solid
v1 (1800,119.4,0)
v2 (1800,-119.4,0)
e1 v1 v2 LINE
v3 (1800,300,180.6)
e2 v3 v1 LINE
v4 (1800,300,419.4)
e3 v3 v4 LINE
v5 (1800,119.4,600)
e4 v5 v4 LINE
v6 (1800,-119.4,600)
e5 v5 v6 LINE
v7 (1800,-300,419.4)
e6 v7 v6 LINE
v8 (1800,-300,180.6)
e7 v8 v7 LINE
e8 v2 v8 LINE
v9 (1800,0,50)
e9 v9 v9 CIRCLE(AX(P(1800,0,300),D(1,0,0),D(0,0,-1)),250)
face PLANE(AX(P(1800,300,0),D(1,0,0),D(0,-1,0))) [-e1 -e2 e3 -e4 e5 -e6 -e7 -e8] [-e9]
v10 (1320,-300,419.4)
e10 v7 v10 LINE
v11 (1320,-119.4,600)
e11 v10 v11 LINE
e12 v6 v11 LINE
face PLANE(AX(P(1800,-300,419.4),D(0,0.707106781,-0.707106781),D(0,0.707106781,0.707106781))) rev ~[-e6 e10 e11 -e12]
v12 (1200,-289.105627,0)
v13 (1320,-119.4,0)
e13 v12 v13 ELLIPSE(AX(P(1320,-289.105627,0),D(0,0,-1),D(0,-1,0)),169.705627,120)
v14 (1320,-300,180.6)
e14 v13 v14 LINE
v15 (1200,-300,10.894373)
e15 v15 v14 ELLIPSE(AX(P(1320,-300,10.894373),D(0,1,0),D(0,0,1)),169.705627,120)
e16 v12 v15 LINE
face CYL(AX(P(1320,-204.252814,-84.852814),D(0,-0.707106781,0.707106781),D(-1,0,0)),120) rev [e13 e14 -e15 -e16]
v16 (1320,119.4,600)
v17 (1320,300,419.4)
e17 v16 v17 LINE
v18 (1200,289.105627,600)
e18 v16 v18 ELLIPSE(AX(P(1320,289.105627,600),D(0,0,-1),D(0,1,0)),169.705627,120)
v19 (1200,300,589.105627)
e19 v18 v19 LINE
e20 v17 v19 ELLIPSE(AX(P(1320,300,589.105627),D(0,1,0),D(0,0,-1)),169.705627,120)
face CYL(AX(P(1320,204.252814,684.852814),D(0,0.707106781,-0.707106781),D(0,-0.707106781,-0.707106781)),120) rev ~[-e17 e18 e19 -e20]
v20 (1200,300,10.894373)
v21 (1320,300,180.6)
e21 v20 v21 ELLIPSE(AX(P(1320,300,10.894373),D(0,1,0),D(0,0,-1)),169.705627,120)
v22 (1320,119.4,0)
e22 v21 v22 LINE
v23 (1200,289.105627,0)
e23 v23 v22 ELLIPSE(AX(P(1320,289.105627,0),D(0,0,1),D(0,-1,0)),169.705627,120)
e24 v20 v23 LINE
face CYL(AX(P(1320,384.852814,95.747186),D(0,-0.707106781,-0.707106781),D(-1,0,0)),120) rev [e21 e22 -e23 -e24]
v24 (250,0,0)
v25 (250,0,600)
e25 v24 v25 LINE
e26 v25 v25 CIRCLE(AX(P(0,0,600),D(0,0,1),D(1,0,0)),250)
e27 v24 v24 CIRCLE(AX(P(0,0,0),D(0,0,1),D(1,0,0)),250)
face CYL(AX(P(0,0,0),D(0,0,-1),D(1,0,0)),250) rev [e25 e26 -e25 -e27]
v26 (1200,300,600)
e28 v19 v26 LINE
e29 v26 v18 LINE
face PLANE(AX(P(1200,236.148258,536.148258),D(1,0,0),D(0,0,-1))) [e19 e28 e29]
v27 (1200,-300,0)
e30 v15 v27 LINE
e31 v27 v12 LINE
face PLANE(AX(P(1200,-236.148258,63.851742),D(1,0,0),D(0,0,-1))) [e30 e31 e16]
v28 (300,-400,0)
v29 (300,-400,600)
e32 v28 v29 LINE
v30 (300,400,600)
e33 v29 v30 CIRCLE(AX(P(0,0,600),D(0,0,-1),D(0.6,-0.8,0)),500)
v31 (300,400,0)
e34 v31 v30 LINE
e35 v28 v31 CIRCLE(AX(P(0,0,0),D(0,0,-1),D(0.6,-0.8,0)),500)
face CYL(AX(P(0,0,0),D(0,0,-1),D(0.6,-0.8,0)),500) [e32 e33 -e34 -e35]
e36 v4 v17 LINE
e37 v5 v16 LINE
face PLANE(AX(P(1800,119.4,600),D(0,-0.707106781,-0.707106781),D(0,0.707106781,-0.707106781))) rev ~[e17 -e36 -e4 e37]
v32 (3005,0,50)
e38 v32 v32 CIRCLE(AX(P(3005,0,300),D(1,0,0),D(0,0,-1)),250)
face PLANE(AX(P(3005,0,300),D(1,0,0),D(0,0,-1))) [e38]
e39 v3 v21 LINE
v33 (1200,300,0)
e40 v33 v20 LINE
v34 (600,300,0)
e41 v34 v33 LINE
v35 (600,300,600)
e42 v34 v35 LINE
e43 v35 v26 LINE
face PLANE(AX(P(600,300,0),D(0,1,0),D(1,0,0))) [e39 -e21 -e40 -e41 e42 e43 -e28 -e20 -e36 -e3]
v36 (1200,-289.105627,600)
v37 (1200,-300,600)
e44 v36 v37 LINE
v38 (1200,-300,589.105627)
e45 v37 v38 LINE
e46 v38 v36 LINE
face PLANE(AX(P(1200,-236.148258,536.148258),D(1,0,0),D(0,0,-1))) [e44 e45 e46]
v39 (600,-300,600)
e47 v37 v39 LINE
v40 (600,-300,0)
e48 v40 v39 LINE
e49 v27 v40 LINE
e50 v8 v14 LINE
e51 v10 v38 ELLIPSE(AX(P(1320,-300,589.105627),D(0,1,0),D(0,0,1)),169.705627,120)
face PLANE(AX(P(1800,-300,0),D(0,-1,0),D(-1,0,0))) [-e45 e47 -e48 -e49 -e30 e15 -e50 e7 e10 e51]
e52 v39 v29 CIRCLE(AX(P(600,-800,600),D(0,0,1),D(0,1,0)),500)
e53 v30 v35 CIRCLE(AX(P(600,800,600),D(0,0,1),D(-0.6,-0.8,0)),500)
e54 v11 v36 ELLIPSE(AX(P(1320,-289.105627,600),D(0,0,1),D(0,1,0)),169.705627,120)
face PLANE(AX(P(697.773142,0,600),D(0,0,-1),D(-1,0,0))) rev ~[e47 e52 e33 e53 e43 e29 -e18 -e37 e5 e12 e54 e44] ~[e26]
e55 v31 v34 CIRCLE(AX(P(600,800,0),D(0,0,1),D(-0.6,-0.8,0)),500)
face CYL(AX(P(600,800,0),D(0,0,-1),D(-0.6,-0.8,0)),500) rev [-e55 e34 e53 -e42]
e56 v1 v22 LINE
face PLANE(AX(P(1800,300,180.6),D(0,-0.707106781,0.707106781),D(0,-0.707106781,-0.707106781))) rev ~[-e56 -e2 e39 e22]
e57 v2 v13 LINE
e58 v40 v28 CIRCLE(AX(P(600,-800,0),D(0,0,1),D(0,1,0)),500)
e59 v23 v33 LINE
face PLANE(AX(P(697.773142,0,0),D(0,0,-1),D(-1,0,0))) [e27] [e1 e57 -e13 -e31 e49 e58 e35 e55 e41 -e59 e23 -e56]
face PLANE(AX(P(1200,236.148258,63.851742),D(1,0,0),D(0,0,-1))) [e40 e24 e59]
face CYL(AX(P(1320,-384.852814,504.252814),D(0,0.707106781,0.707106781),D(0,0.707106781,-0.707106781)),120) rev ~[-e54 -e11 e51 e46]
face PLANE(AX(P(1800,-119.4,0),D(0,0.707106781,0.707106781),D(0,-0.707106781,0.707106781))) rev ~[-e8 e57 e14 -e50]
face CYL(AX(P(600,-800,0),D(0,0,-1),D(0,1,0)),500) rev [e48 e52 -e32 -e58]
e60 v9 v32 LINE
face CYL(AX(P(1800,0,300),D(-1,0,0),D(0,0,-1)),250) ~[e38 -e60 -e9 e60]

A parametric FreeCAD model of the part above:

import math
import FreeCAD as App
import Part
import Sketcher
Q = App.Units.Quantity


def edges_at(feature, points):
    """Names of the edges that pass closest to the given points."""
    edges = feature.Shape.Edges
    near = lambda p: min(range(len(edges)), key=lambda i: edges[i].distToShape(Part.Vertex(*p))[0])
    return sorted({f"Edge{near(p) + 1}" for p in points})

doc = App.newDocument("Part")
params = doc.addObject("Spreadsheet::Sheet", "Params")
for row, (alias, value) in enumerate([
    ("sketch1_diameter", "500 mm"),
    ("sketch1_radius", "500 mm"),
    ("sketch1_width", "1200 mm"),
    ("sketch1_height", "600 mm"),
    ("pad1_length", "600 mm"),
    ("sketch2_width", "180.6 mm"),
    ("pocket1_length", "600 mm"),
    ("sketch3_diameter", "500 mm"),
    ("pad2_length", "1205 mm"),
    ("fillet_radius", "120 mm"),
], start=1):
    params.set(f"A{row}", alias)
    params.set(f"B{row}", "=" + value)
    params.setAlias(f"B{row}", alias)

body = doc.addObject("PartDesign::Body", "Body")

# Sketch on XY plane
sketch1 = doc.addObject("Sketcher::SketchObject", "Sketch")
body.addObject(sketch1)
sketch1.AttachmentSupport = (doc.XY_Plane, [""])
sketch1.MapMode = "FlatFace"
sketch1.addGeometry([
    Part.LineSegment(App.Vector(1800, 300, 0), App.Vector(600, 300, 0)),  # 0
    Part.ArcOfCircle(Part.Circle(App.Vector(600, 800, 0), App.Vector(0, 0, 1), 500), math.radians(-126.869898), math.radians(-90)),  # 1
    Part.ArcOfCircle(Part.Circle(App.Vector(0, 0, 0), App.Vector(0, 0, 1), 500), math.radians(53.130102), math.radians(306.869898)),  # 2
    Part.ArcOfCircle(Part.Circle(App.Vector(600, -800, 0), App.Vector(0, 0, 1), 500), math.radians(90), math.radians(126.869898)),  # 3
    Part.LineSegment(App.Vector(600, -300, 0), App.Vector(1800, -300, 0)),  # 4
    Part.LineSegment(App.Vector(1800, -300, 0), App.Vector(1800, 300, 0)),  # 5
    Part.Circle(App.Vector(0, 0, 0), App.Vector(0, 0, 1), 250),  # 6
], False)
sketch1.addConstraint([
    Sketcher.Constraint("Tangent", 0, 2, 1, 2),
    Sketcher.Constraint("Tangent", 1, 1, 2, 1),
    Sketcher.Constraint("Tangent", 2, 2, 3, 2),
    Sketcher.Constraint("Tangent", 3, 1, 4, 1),
    Sketcher.Constraint("Coincident", 4, 2, 5, 1),
    Sketcher.Constraint("Coincident", 5, 2, 0, 1),
    Sketcher.Constraint("Horizontal", 0),
    Sketcher.Constraint("Horizontal", 4),
    Sketcher.Constraint("Vertical", 5),
    Sketcher.Constraint("Coincident", 2, 3, -1, 1),
    Sketcher.Constraint("Coincident", 6, 3, -1, 1),
    Sketcher.Constraint("Equal", 1, 2),
    Sketcher.Constraint("Equal", 2, 3),
    Sketcher.Constraint("Vertical", 1, 3, 3, 3),
    Sketcher.Constraint("Diameter", 6, Q("500 mm")),
    Sketcher.Constraint("Radius", 1, Q("500 mm")),
    Sketcher.Constraint("DistanceX", 0, 2, 0, 1, Q("1200 mm")),
    Sketcher.Constraint("DistanceY", 5, 1, 5, 2, Q("600 mm")),
])
sketch1.setExpression("Constraints[14]", "Params.sketch1_diameter")
sketch1.setExpression("Constraints[15]", "Params.sketch1_radius")
sketch1.setExpression("Constraints[16]", "Params.sketch1_width")
sketch1.setExpression("Constraints[17]", "Params.sketch1_height")
pad1 = doc.addObject("PartDesign::Pad", "Pad")
body.addObject(pad1)
pad1.Profile = sketch1
pad1.setExpression("Length", "Params.pad1_length")

# Sketch on YZ plane
sketch2 = doc.addObject("Sketcher::SketchObject", "Sketch001")
body.addObject(sketch2)
sketch2.AttachmentSupport = (doc.YZ_Plane, [""])
sketch2.MapMode = "FlatFace"
sketch2.AttachmentOffset = App.Placement(App.Vector(0, 0, 1800), App.Rotation())
sketch2.addGeometry([
    Part.LineSegment(App.Vector(119.4, 600, 0), App.Vector(300, 419.4, 0)),  # 0
    Part.LineSegment(App.Vector(300, 419.4, 0), App.Vector(300, 600, 0)),  # 1
    Part.LineSegment(App.Vector(300, 600, 0), App.Vector(119.4, 600, 0)),  # 2
    Part.LineSegment(App.Vector(300, 0, 0), App.Vector(300, 180.6, 0)),  # 3
    Part.LineSegment(App.Vector(300, 180.6, 0), App.Vector(119.4, 0, 0)),  # 4
    Part.LineSegment(App.Vector(119.4, 0, 0), App.Vector(300, 0, 0)),  # 5
    Part.LineSegment(App.Vector(-300, 0, 0), App.Vector(-119.4, 0, 0)),  # 6
    Part.LineSegment(App.Vector(-119.4, 0, 0), App.Vector(-300, 180.6, 0)),  # 7
    Part.LineSegment(App.Vector(-300, 180.6, 0), App.Vector(-300, 0, 0)),  # 8
    Part.LineSegment(App.Vector(-300, 419.4, 0), App.Vector(-119.4, 600, 0)),  # 9
    Part.LineSegment(App.Vector(-119.4, 600, 0), App.Vector(-300, 600, 0)),  # 10
    Part.LineSegment(App.Vector(-300, 600, 0), App.Vector(-300, 419.4, 0)),  # 11
], False)
sketch2.addConstraint([
    Sketcher.Constraint("Coincident", 0, 2, 1, 1),
    Sketcher.Constraint("Coincident", 1, 2, 2, 1),
    Sketcher.Constraint("Coincident", 2, 2, 0, 1),
    Sketcher.Constraint("Coincident", 3, 2, 4, 1),
    Sketcher.Constraint("Coincident", 4, 2, 5, 1),
    Sketcher.Constraint("Coincident", 5, 2, 3, 1),
    Sketcher.Constraint("Coincident", 6, 2, 7, 1),
    Sketcher.Constraint("Coincident", 7, 2, 8, 1),
    Sketcher.Constraint("Coincident", 8, 2, 6, 1),
    Sketcher.Constraint("Coincident", 9, 2, 10, 1),
    Sketcher.Constraint("Coincident", 10, 2, 11, 1),
    Sketcher.Constraint("Coincident", 11, 2, 9, 1),
    Sketcher.Constraint("Vertical", 1),
    Sketcher.Constraint("Horizontal", 2),
    Sketcher.Constraint("Vertical", 3),
    Sketcher.Constraint("Horizontal", 5),
    Sketcher.Constraint("Horizontal", 6),
    Sketcher.Constraint("Vertical", 8),
    Sketcher.Constraint("Horizontal", 10),
    Sketcher.Constraint("Vertical", 11),
    Sketcher.Constraint("Symmetric", 4, 2, 6, 2, -1, 1),
    Sketcher.Constraint("Symmetric", 3, 2, 7, 2, -2),
    Sketcher.Constraint("Symmetric", 2, 2, 9, 2, -2),
    Sketcher.Constraint("Symmetric", 0, 2, 11, 2, -2),
    Sketcher.Constraint("PointOnObject", 4, 2, -1),
    Sketcher.Constraint("Perpendicular", 0, 4),
    Sketcher.Constraint("Perpendicular", 4, 7),
    Sketcher.Constraint("Vertical", 1, 2, 3, 2),
    Sketcher.Constraint("Vertical", 2, 2, 4, 2),
    Sketcher.Constraint("DistanceX", 2, 2, 2, 1, Q("180.6 mm")),
    Sketcher.Constraint("DistanceX", -1, 1, 0, 2, Q("300 mm")),
    Sketcher.Constraint("DistanceY", -1, 1, 1, 2, Q("600 mm")),
])
sketch2.setExpression("Constraints[29]", "Params.sketch2_width")
pocket1 = doc.addObject("PartDesign::Pocket", "Pocket")
body.addObject(pocket1)
pocket1.Profile = sketch2
pocket1.setExpression("Length", "Params.pocket1_length")

# Sketch on YZ plane
sketch3 = doc.addObject("Sketcher::SketchObject", "Sketch002")
body.addObject(sketch3)
sketch3.AttachmentSupport = (doc.YZ_Plane, [""])
sketch3.MapMode = "FlatFace"
sketch3.AttachmentOffset = App.Placement(App.Vector(0, 0, 1800), App.Rotation())
sketch3.addGeometry(Part.Circle(App.Vector(0, 300, 0), App.Vector(0, 0, 1), 250), False)
sketch3.addConstraint([
    Sketcher.Constraint("PointOnObject", 0, 3, -2),
    Sketcher.Constraint("Diameter", 0, Q("500 mm")),
    Sketcher.Constraint("DistanceY", -1, 1, 0, 3, Q("300 mm")),
])
sketch3.setExpression("Constraints[1]", "Params.sketch3_diameter")
pad2 = doc.addObject("PartDesign::Pad", "Pad001")
body.addObject(pad2)
pad2.Profile = sketch3
pad2.setExpression("Length", "Params.pad2_length")
doc.recompute()

fillet = doc.addObject("PartDesign::Fillet", "Fillet")
body.addObject(fillet)
fillet.Base = (pad2, edges_at(pad2, [
    (1200, -209.7, 509.7),
    (1200, -209.7, 90.3),
    (1200, 209.7, 90.3),
    (1200, 209.7, 509.7),
]))
fillet.setExpression("Radius", "Params.fillet_radius")

doc.recompute()
